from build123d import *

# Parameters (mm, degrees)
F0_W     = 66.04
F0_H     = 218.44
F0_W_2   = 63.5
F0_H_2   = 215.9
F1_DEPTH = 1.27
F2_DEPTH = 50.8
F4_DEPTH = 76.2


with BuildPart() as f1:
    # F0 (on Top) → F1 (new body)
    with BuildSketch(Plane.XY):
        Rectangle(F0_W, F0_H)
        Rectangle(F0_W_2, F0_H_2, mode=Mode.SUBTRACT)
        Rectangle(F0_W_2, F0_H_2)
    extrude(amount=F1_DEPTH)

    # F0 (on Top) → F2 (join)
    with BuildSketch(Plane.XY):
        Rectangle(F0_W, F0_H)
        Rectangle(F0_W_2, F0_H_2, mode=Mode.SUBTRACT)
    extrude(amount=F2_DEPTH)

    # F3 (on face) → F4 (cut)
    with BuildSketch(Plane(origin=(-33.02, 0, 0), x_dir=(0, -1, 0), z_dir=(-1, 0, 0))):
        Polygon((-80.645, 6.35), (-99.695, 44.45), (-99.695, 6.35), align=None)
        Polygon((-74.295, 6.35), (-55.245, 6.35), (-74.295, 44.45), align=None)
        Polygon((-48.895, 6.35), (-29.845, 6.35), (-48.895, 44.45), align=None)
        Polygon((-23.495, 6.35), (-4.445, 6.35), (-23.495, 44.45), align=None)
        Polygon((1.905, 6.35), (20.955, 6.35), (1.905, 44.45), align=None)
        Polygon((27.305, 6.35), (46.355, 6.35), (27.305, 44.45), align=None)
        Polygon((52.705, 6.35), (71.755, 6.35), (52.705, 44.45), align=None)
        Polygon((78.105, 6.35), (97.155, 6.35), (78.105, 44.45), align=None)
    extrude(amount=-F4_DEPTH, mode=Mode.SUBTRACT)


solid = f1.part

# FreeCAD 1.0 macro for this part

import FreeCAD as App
import Part
import Sketcher
Q = App.Units.Quantity

doc = App.newDocument("Part")
params = doc.addObject("Spreadsheet::Sheet", "Params")
for row, (alias, value) in enumerate([
    ("sketch1_width", "2.6 in"),
    ("sketch1_height", "8.6 in"),
    ("pad1_length", "0.05 in"),
    ("sketch2_width", "2.6 in"),
    ("sketch2_width2", "2.5 in"),
    ("sketch2_height", "8.6 in"),
    ("sketch2_height2", "8.5 in"),
    ("pad2_length", "2 in"),
    ("sketch3_height", "1.5 in"),
    ("sketch3_width", "0.75 in"),
    ("pocket1_length", "3 in"),
], start=1):
    params.set(f"A{row}", alias)
    params.set(f"B{row}", "=" + value)
    params.setAlias(f"B{row}", alias)

body = doc.addObject("PartDesign::Body", "Body")

# Sketch on XY plane
sketch1 = body.newObject("Sketcher::SketchObject", "Sketch")
sketch1.AttachmentSupport = (doc.getObject("XY_Plane"), [""])
sketch1.MapMode = "FlatFace"
sketch1.addGeometry(Part.LineSegment(App.Vector(-33, 109, 0), App.Vector(-33, -109, 0)), False)
sketch1.addGeometry(Part.LineSegment(App.Vector(-33, -109, 0), App.Vector(33, -109, 0)), False)
sketch1.addGeometry(Part.LineSegment(App.Vector(33, -109, 0), App.Vector(33, 109, 0)), False)
sketch1.addGeometry(Part.LineSegment(App.Vector(33, 109, 0), App.Vector(-33, 109, 0)), False)
sketch1.addConstraint(Sketcher.Constraint("Coincident", 0, 2, 1, 1))
sketch1.addConstraint(Sketcher.Constraint("Coincident", 1, 2, 2, 1))
sketch1.addConstraint(Sketcher.Constraint("Coincident", 2, 2, 3, 1))
sketch1.addConstraint(Sketcher.Constraint("Coincident", 3, 2, 0, 1))
sketch1.addConstraint(Sketcher.Constraint("Vertical", 0))
sketch1.addConstraint(Sketcher.Constraint("Horizontal", 1))
sketch1.addConstraint(Sketcher.Constraint("Vertical", 2))
sketch1.addConstraint(Sketcher.Constraint("Horizontal", 3))
sketch1.addConstraint(Sketcher.Constraint("Symmetric", 0, 2, 2, 2, -1, 1))
sketch1.addConstraint(Sketcher.Constraint("DistanceX", 1, 1, 1, 2, Q("2.6 in")))
sketch1.addConstraint(Sketcher.Constraint("DistanceY", 0, 2, 0, 1, Q("8.6 in")))
sketch1.setExpression("Constraints[9]", "Params.sketch1_width")
sketch1.setExpression("Constraints[10]", "Params.sketch1_height")
pad1 = body.newObject("PartDesign::Pad", "Pad")
pad1.Profile = sketch1
pad1.setExpression("Length", "Params.pad1_length")

# Sketch on XY plane
sketch2 = body.newObject("Sketcher::SketchObject", "Sketch001")
sketch2.AttachmentSupport = (doc.getObject("XY_Plane"), [""])
sketch2.MapMode = "FlatFace"
sketch2.addGeometry(Part.LineSegment(App.Vector(-33, 109, 0), App.Vector(-33, -109, 0)), False)
sketch2.addGeometry(Part.LineSegment(App.Vector(-33, -109, 0), App.Vector(33, -109, 0)), False)
sketch2.addGeometry(Part.LineSegment(App.Vector(33, -109, 0), App.Vector(33, 109, 0)), False)
sketch2.addGeometry(Part.LineSegment(App.Vector(33, 109, 0), App.Vector(-33, 109, 0)), False)
sketch2.addGeometry(Part.LineSegment(App.Vector(32, -108, 0), App.Vector(-32, -108, 0)), False)
sketch2.addGeometry(Part.LineSegment(App.Vector(-32, -108, 0), App.Vector(-32, 108, 0)), False)
sketch2.addGeometry(Part.LineSegment(App.Vector(-32, 108, 0), App.Vector(32, 108, 0)), False)
sketch2.addGeometry(Part.LineSegment(App.Vector(32, 108, 0), App.Vector(32, -108, 0)), False)
sketch2.addConstraint(Sketcher.Constraint("Coincident", 0, 2, 1, 1))
sketch2.addConstraint(Sketcher.Constraint("Coincident", 1, 2, 2, 1))
sketch2.addConstraint(Sketcher.Constraint("Coincident", 2, 2, 3, 1))
sketch2.addConstraint(Sketcher.Constraint("Coincident", 3, 2, 0, 1))
sketch2.addConstraint(Sketcher.Constraint("Coincident", 4, 2, 5, 1))
sketch2.addConstraint(Sketcher.Constraint("Coincident", 5, 2, 6, 1))
sketch2.addConstraint(Sketcher.Constraint("Coincident", 6, 2, 7, 1))
sketch2.addConstraint(Sketcher.Constraint("Coincident", 7, 2, 4, 1))
sketch2.addConstraint(Sketcher.Constraint("Vertical", 0))
sketch2.addConstraint(Sketcher.Constraint("Horizontal", 1))
sketch2.addConstraint(Sketcher.Constraint("Vertical", 2))
sketch2.addConstraint(Sketcher.Constraint("Horizontal", 3))
sketch2.addConstraint(Sketcher.Constraint("Horizontal", 4))
sketch2.addConstraint(Sketcher.Constraint("Vertical", 5))
sketch2.addConstraint(Sketcher.Constraint("Horizontal", 6))
sketch2.addConstraint(Sketcher.Constraint("Vertical", 7))
sketch2.addConstraint(Sketcher.Constraint("Symmetric", 0, 2, 2, 2, -1, 1))
sketch2.addConstraint(Sketcher.Constraint("Symmetric", 4, 2, 6, 2, -1, 1))
sketch2.addConstraint(Sketcher.Constraint("DistanceX", 1, 1, 1, 2, Q("2.6 in")))
sketch2.addConstraint(Sketcher.Constraint("DistanceX", 4, 2, 4, 1, Q("2.5 in")))
sketch2.addConstraint(Sketcher.Constraint("DistanceY", 0, 2, 0, 1, Q("8.6 in")))
sketch2.addConstraint(Sketcher.Constraint("DistanceY", 5, 1, 5, 2, Q("8.5 in")))
sketch2.setExpression("Constraints[18]", "Params.sketch2_width")
sketch2.setExpression("Constraints[19]", "Params.sketch2_width2")
sketch2.setExpression("Constraints[20]", "Params.sketch2_height")
sketch2.setExpression("Constraints[21]", "Params.sketch2_height2")
pad2 = body.newObject("PartDesign::Pad", "Pad001")
pad2.Profile = sketch2
pad2.setExpression("Length", "Params.pad2_length")

# Sketch on YZ plane
sketch3 = body.newObject("Sketcher::SketchObject", "Sketch002")
sketch3.AttachmentSupport = (doc.getObject("YZ_Plane"), [""])
sketch3.MapMode = "FlatFace"
sketch3.AttachmentOffset = App.Placement(App.Vector(0, 0, -1.3 * 25.4), App.Rotation())
sketch3.addGeometry(Part.LineSegment(App.Vector(81, 6, 0), App.Vector(100, 44, 0)), False)
sketch3.addGeometry(Part.LineSegment(App.Vector(100, 44, 0), App.Vector(100, 6, 0)), False)
sketch3.addGeometry(Part.LineSegment(App.Vector(100, 6, 0), App.Vector(81, 6, 0)), False)
sketch3.addGeometry(Part.LineSegment(App.Vector(74, 6, 0), App.Vector(55, 6, 0)), False)
sketch3.addGeometry(Part.LineSegment(App.Vector(55, 6, 0), App.Vector(74, 44, 0)), False)
sketch3.addGeometry(Part.LineSegment(App.Vector(74, 44, 0), App.Vector(74, 6, 0)), False)
sketch3.addGeometry(Part.LineSegment(App.Vector(49, 6, 0), App.Vector(30, 6, 0)), False)
sketch3.addGeometry(Part.LineSegment(App.Vector(30, 6, 0), App.Vector(49, 44, 0)), False)
sketch3.addGeometry(Part.LineSegment(App.Vector(49, 44, 0), App.Vector(49, 6, 0)), False)
sketch3.addGeometry(Part.LineSegment(App.Vector(23, 6, 0), App.Vector(4, 6, 0)), False)
sketch3.addGeometry(Part.LineSegment(App.Vector(4, 6, 0), App.Vector(23, 44, 0)), False)
sketch3.addGeometry(Part.LineSegment(App.Vector(23, 44, 0), App.Vector(23, 6, 0)), False)
sketch3.addGeometry(Part.LineSegment(App.Vector(-2, 6, 0), App.Vector(-21, 6, 0)), False)
sketch3.addGeometry(Part.LineSegment(App.Vector(-21, 6, 0), App.Vector(-2, 44, 0)), False)
sketch3.addGeometry(Part.LineSegment(App.Vector(-2, 44, 0), App.Vector(-2, 6, 0)), False)
sketch3.addGeometry(Part.LineSegment(App.Vector(-27, 6, 0), App.Vector(-46, 6, 0)), False)
sketch3.addGeometry(Part.LineSegment(App.Vector(-46, 6, 0), App.Vector(-27, 44, 0)), False)
sketch3.addGeometry(Part.LineSegment(App.Vector(-27, 44, 0), App.Vector(-27, 6, 0)), False)
sketch3.addGeometry(Part.LineSegment(App.Vector(-53, 6, 0), App.Vector(-72, 6, 0)), False)
sketch3.addGeometry(Part.LineSegment(App.Vector(-72, 6, 0), App.Vector(-53, 44, 0)), False)
sketch3.addGeometry(Part.LineSegment(App.Vector(-53, 44, 0), App.Vector(-53, 6, 0)), False)
sketch3.addGeometry(Part.LineSegment(App.Vector(-78, 6, 0), App.Vector(-97, 6, 0)), False)
sketch3.addGeometry(Part.LineSegment(App.Vector(-97, 6, 0), App.Vector(-78, 44, 0)), False)
sketch3.addGeometry(Part.LineSegment(App.Vector(-78, 44, 0), App.Vector(-78, 6, 0)), False)
sketch3.addConstraint(Sketcher.Constraint("Coincident", 0, 2, 1, 1))
sketch3.addConstraint(Sketcher.Constraint("Coincident", 1, 2, 2, 1))
sketch3.addConstraint(Sketcher.Constraint("Coincident", 2, 2, 0, 1))
sketch3.addConstraint(Sketcher.Constraint("Coincident", 3, 2, 4, 1))
sketch3.addConstraint(Sketcher.Constraint("Coincident", 4, 2, 5, 1))
sketch3.addConstraint(Sketcher.Constraint("Coincident", 5, 2, 3, 1))
sketch3.addConstraint(Sketcher.Constraint("Coincident", 6, 2, 7, 1))
sketch3.addConstraint(Sketcher.Constraint("Coincident", 7, 2, 8, 1))
sketch3.addConstraint(Sketcher.Constraint("Coincident", 8, 2, 6, 1))
sketch3.addConstraint(Sketcher.Constraint("Coincident", 9, 2, 10, 1))
sketch3.addConstraint(Sketcher.Constraint("Coincident", 10, 2, 11, 1))
sketch3.addConstraint(Sketcher.Constraint("Coincident", 11, 2, 9, 1))
sketch3.addConstraint(Sketcher.Constraint("Coincident", 12, 2, 13, 1))
sketch3.addConstraint(Sketcher.Constraint("Coincident", 13, 2, 14, 1))
sketch3.addConstraint(Sketcher.Constraint("Coincident", 14, 2, 12, 1))
sketch3.addConstraint(Sketcher.Constraint("Coincident", 15, 2, 16, 1))
sketch3.addConstraint(Sketcher.Constraint("Coincident", 16, 2, 17, 1))
sketch3.addConstraint(Sketcher.Constraint("Coincident", 17, 2, 15, 1))
sketch3.addConstraint(Sketcher.Constraint("Coincident", 18, 2, 19, 1))
sketch3.addConstraint(Sketcher.Constraint("Coincident", 19, 2, 20, 1))
sketch3.addConstraint(Sketcher.Constraint("Coincident", 20, 2, 18, 1))
sketch3.addConstraint(Sketcher.Constraint("Coincident", 21, 2, 22, 1))
sketch3.addConstraint(Sketcher.Constraint("Coincident", 22, 2, 23, 1))
sketch3.addConstraint(Sketcher.Constraint("Coincident", 23, 2, 21, 1))
sketch3.addConstraint(Sketcher.Constraint("Vertical", 1))
sketch3.addConstraint(Sketcher.Constraint("Horizontal", 2))
sketch3.addConstraint(Sketcher.Constraint("Horizontal", 3))
sketch3.addConstraint(Sketcher.Constraint("Vertical", 5))
sketch3.addConstraint(Sketcher.Constraint("Horizontal", 6))
sketch3.addConstraint(Sketcher.Constraint("Vertical", 8))
sketch3.addConstraint(Sketcher.Constraint("Horizontal", 9))
sketch3.addConstraint(Sketcher.Constraint("Vertical", 11))
sketch3.addConstraint(Sketcher.Constraint("Horizontal", 12))
sketch3.addConstraint(Sketcher.Constraint("Vertical", 14))
sketch3.addConstraint(Sketcher.Constraint("Horizontal", 15))
sketch3.addConstraint(Sketcher.Constraint("Vertical", 17))
sketch3.addConstraint(Sketcher.Constraint("Horizontal", 18))
sketch3.addConstraint(Sketcher.Constraint("Vertical", 20))
sketch3.addConstraint(Sketcher.Constraint("Horizontal", 21))
sketch3.addConstraint(Sketcher.Constraint("Vertical", 23))
sketch3.addConstraint(Sketcher.Constraint("Parallel", 0, 4))
sketch3.addConstraint(Sketcher.Constraint("Parallel", 4, 7))
sketch3.addConstraint(Sketcher.Constraint("Parallel", 7, 10))
sketch3.addConstraint(Sketcher.Constraint("Parallel", 10, 13))
sketch3.addConstraint(Sketcher.Constraint("Parallel", 13, 16))
sketch3.addConstraint(Sketcher.Constraint("Parallel", 16, 19))
sketch3.addConstraint(Sketcher.Constraint("Parallel", 19, 22))
sketch3.addConstraint(Sketcher.Constraint("Horizontal", 2, 2, 3, 2))
sketch3.addConstraint(Sketcher.Constraint("Horizontal", 0, 2, 4, 2))
sketch3.addConstraint(Sketcher.Constraint("Horizontal", 5, 2, 6, 2))
sketch3.addConstraint(Sketcher.Constraint("Horizontal", 4, 2, 7, 2))
sketch3.addConstraint(Sketcher.Constraint("Horizontal", 8, 2, 9, 2))
sketch3.addConstraint(Sketcher.Constraint("Horizontal", 7, 2, 10, 2))
sketch3.addConstraint(Sketcher.Constraint("Horizontal", 11, 2, 12, 2))
sketch3.addConstraint(Sketcher.Constraint("Horizontal", 10, 2, 13, 2))
sketch3.addConstraint(Sketcher.Constraint("Horizontal", 14, 2, 15, 2))
sketch3.addConstraint(Sketcher.Constraint("Horizontal", 13, 2, 16, 2))
sketch3.addConstraint(Sketcher.Constraint("Horizontal", 17, 2, 18, 2))
sketch3.addConstraint(Sketcher.Constraint("Horizontal", 16, 2, 19, 2))
sketch3.addConstraint(Sketcher.Constraint("Horizontal", 20, 2, 21, 2))
sketch3.addConstraint(Sketcher.Constraint("Horizontal", 19, 2, 22, 2))
sketch3.addConstraint(Sketcher.Constraint("DistanceY", 1, 2, 1, 1, Q("1.5 in")))
sketch3.addConstraint(Sketcher.Constraint("DistanceX", 3, 2, 2, 2, Q("1 in")))
sketch3.addConstraint(Sketcher.Constraint("DistanceX", 6, 2, 3, 2, Q("1 in")))
sketch3.addConstraint(Sketcher.Constraint("DistanceX", 9, 2, 6, 2, Q("1 in")))
sketch3.addConstraint(Sketcher.Constraint("DistanceX", 12, 2, 9, 2, Q("1 in")))
sketch3.addConstraint(Sketcher.Constraint("DistanceX", 15, 2, 12, 2, Q("1 in")))
sketch3.addConstraint(Sketcher.Constraint("DistanceX", 18, 2, 15, 2, Q("1 in")))
sketch3.addConstraint(Sketcher.Constraint("DistanceX", 21, 2, 18, 2, Q("1 in")))
sketch3.addConstraint(Sketcher.Constraint("DistanceX", 2, 2, 2, 1, Q("0.75 in")))
sketch3.addConstraint(Sketcher.Constraint("DistanceY", -1, 1, 0, 2, Q("1.75 in")))
sketch3.addConstraint(Sketcher.Constraint("DistanceX", -1, 1, 0, 2, Q("3.925 in")))
sketch3.setExpression("Constraints[61]", "Params.sketch3_height")
sketch3.setExpression("Constraints[69]", "Params.sketch3_width")
pocket1 = body.newObject("PartDesign::Pocket", "Pocket")
pocket1.Profile = sketch3
pocket1.setExpression("Length", "Params.pocket1_length")
pocket1.Reversed = True

doc.recompute()
